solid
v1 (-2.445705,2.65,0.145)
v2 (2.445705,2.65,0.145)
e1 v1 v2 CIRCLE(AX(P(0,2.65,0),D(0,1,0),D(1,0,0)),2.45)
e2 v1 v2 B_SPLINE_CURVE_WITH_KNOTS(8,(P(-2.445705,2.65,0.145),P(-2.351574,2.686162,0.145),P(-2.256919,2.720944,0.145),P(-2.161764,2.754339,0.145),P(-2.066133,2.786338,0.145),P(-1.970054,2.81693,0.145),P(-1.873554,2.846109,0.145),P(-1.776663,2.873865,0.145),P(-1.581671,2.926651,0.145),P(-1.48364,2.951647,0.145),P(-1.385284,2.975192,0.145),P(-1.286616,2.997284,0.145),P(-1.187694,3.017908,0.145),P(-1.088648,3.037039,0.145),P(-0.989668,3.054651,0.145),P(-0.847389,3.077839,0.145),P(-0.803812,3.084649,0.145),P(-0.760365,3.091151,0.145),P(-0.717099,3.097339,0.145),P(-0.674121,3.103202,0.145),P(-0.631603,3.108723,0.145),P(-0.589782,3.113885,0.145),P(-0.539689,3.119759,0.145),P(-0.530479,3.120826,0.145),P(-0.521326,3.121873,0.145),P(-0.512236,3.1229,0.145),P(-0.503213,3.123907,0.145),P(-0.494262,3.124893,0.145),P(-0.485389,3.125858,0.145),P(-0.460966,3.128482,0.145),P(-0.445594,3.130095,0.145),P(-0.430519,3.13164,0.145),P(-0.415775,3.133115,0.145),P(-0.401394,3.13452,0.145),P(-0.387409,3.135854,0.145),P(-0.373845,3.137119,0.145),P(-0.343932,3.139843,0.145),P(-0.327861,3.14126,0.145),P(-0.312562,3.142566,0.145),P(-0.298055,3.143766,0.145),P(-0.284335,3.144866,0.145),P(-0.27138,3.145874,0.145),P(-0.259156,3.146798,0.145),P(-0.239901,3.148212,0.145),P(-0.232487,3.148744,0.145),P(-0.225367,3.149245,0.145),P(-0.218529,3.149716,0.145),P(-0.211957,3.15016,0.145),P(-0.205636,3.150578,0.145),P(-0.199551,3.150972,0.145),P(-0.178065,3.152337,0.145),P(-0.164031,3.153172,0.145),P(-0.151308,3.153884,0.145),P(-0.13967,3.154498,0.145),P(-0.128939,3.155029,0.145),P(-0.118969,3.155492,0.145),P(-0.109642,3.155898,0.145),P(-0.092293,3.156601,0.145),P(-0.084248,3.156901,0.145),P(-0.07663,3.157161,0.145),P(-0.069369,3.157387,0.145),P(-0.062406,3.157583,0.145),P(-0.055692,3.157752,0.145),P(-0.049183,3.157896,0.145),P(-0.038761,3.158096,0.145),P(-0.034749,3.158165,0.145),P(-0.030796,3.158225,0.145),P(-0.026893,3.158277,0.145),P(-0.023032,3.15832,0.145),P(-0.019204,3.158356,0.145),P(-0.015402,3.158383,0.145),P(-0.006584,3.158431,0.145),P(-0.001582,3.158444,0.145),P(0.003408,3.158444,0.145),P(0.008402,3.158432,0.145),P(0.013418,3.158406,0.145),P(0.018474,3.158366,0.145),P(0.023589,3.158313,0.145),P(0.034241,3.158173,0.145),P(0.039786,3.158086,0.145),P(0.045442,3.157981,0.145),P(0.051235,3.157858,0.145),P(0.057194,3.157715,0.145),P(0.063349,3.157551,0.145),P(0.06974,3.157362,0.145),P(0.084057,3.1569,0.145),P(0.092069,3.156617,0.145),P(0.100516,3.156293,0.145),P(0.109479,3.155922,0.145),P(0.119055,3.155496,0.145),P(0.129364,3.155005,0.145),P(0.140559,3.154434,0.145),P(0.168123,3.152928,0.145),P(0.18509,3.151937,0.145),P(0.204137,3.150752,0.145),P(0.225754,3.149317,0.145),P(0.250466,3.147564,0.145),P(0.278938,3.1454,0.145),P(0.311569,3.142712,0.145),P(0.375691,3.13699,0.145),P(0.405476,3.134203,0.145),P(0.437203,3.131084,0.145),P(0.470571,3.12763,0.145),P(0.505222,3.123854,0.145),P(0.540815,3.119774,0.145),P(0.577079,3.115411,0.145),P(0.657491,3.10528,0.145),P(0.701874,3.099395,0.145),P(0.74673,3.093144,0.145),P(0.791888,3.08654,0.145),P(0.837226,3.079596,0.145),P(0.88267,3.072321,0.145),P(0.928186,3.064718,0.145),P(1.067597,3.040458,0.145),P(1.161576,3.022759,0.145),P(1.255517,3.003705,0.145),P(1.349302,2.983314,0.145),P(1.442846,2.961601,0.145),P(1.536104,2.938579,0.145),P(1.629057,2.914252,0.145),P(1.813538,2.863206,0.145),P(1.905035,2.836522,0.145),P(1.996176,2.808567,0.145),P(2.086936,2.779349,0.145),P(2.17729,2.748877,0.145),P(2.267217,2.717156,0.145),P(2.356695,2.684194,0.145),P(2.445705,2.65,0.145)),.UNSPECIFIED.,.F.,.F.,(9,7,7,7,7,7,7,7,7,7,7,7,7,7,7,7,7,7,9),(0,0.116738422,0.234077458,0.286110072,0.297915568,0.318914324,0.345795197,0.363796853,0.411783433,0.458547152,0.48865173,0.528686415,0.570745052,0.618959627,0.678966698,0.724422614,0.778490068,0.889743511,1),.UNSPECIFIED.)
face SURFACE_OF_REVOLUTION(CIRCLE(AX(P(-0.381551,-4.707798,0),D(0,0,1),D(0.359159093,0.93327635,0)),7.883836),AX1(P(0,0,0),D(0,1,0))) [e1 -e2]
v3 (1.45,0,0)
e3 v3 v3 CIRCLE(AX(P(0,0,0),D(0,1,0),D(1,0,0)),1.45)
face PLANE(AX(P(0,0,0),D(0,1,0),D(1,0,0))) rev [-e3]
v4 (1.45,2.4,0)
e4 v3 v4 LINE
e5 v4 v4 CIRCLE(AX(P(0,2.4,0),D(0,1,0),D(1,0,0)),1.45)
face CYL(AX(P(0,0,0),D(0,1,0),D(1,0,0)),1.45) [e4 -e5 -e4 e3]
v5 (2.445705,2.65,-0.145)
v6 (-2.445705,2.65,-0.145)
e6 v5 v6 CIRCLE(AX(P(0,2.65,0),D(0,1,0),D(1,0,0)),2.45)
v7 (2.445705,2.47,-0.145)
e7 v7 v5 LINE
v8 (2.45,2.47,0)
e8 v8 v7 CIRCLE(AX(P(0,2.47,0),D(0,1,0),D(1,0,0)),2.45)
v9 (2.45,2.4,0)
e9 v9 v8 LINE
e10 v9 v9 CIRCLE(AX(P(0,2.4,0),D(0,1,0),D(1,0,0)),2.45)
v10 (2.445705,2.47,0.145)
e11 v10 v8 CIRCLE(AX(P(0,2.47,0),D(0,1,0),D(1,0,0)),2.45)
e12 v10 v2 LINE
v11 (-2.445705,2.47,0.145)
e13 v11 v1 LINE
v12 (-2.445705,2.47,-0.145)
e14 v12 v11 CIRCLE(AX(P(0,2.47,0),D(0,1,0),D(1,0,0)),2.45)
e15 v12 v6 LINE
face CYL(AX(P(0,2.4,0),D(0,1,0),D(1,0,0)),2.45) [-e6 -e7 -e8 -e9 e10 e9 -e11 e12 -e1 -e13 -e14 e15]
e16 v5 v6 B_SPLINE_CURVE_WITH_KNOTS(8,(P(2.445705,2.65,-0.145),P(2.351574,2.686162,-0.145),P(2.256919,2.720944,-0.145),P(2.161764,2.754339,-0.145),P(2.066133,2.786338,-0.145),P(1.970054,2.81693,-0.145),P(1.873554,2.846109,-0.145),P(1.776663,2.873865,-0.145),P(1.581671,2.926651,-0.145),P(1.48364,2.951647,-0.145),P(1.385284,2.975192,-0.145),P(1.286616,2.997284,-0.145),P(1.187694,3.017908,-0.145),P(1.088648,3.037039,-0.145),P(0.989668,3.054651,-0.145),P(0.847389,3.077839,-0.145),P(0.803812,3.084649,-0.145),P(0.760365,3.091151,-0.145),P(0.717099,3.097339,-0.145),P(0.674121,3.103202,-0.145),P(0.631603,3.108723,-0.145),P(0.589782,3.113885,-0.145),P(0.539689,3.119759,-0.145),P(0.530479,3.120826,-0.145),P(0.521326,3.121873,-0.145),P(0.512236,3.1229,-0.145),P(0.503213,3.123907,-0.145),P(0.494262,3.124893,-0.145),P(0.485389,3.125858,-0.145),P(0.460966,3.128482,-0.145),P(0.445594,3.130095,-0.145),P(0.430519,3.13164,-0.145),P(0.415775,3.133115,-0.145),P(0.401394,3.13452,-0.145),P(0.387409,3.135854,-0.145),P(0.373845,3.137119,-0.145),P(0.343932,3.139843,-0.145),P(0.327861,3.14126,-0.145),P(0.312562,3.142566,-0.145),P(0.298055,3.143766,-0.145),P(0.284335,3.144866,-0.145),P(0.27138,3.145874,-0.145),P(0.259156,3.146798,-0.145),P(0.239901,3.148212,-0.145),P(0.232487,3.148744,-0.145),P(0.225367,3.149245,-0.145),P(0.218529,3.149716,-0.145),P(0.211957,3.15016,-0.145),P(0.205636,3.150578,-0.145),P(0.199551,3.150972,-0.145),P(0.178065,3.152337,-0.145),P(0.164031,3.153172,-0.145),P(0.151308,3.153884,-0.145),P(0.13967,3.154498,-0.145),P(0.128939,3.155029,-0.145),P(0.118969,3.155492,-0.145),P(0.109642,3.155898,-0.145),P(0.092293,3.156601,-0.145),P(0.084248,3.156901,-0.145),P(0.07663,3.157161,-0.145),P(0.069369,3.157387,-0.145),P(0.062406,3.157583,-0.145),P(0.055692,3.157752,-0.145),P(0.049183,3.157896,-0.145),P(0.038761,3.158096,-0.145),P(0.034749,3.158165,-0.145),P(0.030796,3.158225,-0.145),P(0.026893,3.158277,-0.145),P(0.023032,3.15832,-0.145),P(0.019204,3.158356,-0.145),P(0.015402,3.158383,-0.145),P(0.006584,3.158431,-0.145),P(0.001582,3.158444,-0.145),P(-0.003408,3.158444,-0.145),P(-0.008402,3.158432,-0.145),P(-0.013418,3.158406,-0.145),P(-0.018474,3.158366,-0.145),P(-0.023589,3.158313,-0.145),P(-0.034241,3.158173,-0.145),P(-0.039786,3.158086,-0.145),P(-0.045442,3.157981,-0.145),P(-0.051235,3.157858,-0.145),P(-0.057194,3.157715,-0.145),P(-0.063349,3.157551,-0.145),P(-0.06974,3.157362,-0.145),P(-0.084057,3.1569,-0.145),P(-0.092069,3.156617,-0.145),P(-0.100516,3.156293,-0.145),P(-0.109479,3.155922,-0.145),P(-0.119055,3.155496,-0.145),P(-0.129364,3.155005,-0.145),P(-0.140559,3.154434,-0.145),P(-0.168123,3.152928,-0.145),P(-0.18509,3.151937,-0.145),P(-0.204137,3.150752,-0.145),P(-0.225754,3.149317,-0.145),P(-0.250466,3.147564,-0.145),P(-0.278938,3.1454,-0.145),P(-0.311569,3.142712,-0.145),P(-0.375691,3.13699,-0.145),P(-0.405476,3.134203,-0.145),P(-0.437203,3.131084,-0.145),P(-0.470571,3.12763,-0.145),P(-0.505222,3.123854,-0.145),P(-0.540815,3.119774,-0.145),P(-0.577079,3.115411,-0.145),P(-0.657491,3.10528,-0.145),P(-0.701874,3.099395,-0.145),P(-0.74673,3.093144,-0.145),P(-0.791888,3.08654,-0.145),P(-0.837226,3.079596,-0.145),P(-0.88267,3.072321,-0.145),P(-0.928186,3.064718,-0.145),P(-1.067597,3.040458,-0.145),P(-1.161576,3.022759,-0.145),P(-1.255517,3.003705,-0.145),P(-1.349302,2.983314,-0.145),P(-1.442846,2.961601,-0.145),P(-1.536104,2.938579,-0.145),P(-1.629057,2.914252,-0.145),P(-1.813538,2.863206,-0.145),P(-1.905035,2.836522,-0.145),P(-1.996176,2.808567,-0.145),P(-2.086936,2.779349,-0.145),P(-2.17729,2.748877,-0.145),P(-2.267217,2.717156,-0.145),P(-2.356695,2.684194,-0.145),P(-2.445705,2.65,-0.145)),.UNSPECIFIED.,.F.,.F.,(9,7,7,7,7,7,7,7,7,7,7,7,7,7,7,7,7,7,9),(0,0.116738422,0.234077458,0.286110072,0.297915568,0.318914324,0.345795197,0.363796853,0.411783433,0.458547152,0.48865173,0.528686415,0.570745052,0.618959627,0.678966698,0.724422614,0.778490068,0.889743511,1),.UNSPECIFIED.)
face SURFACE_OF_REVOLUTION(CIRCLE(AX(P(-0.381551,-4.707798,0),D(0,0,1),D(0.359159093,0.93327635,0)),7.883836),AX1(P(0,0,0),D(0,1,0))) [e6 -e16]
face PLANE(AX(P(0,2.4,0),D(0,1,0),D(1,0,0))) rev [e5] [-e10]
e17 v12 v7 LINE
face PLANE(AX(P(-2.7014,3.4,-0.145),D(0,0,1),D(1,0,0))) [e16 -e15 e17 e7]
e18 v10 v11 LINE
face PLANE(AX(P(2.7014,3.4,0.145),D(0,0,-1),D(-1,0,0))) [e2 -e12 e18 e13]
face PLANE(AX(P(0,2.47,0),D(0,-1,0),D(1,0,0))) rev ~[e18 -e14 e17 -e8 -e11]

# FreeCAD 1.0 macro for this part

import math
import FreeCAD as App
import Part
import Sketcher

V = App.Vector
Q = App.Units.Quantity


def add_polygon(sketch, points):
    """Adds a closed chain of lines whose ends are joined by coincident constraints."""
    first, n = sketch.GeometryCount, len(points)
    for a, b in zip(points, points[1:] + points[:1]):
        sketch.addGeometry(Part.LineSegment(App.Vector(*a, 0), App.Vector(*b, 0)), False)
    for i in range(n):
        sketch.addConstraint(Sketcher.Constraint("Coincident", first + i, 2, first + (i + 1) % n, 1))

doc = App.newDocument("Part")
body = doc.addObject("PartDesign::Body", "Body")

# Sketch on XY plane
sketch1 = doc.addObject("Sketcher::SketchObject", "Sketch")
body.addObject(sketch1)
sketch1.AttachmentSupport = (doc.XY_Plane, [""])
sketch1.MapMode = "FlatFace"
sketch1.addGeometry([
    Part.LineSegment(V(0, 3.17, 0), V(0, 0, 0)),  # 0
    Part.LineSegment(V(0, 0, 0), V(1.45, 0, 0)),  # 1
    Part.LineSegment(V(1.45, 0, 0), V(1.45, 2.4, 0)),  # 2
    Part.LineSegment(V(1.45, 2.4, 0), V(2.45, 2.4, 0)),  # 3
    Part.LineSegment(V(2.45, 2.4, 0), V(2.45, 2.65, 0)),  # 4
    Part.ArcOfCircle(Part.Circle(V(-0.38, -4.71, 0), V(0, 0, 1), 7.88), math.radians(68.95), math.radians(87.23)),  # 5
], False)
sketch1.addConstraint([
    Sketcher.Constraint("Coincident", 0, 2, 1, 1),
    Sketcher.Constraint("Coincident", 1, 2, 2, 1),
    Sketcher.Constraint("Coincident", 2, 2, 3, 1),
    Sketcher.Constraint("Coincident", 3, 2, 4, 1),
    Sketcher.Constraint("Coincident", 4, 2, 5, 1),
    Sketcher.Constraint("Coincident", 5, 2, 0, 1),
    Sketcher.Constraint("Vertical", 0),
    Sketcher.Constraint("Horizontal", 1),
    Sketcher.Constraint("Vertical", 2),
    Sketcher.Constraint("Horizontal", 3),
    Sketcher.Constraint("Vertical", 4),
    Sketcher.Constraint("Coincident", 0, 2, -1, 1),
    Sketcher.Constraint("DistanceX", 3, 1, 3, 2, Q("1 mm")),
    Sketcher.Constraint("DistanceY", 2, 1, 2, 2, Q("2.4 mm")),
    Sketcher.Constraint("DistanceX", 1, 1, 1, 2, Q("1.45 mm")),
    Sketcher.Constraint("DistanceY", 4, 1, 4, 2, Q("0.25 mm")),
    Sketcher.Constraint("Radius", 5, Q("7.8844 mm")),
    Sketcher.Constraint("DistanceY", 0, 2, 0, 1, Q("3.1668 mm")),
])
revolution = doc.addObject("PartDesign::Revolution", "Revolution")
body.addObject(revolution)
revolution.Profile = sketch1
revolution.ReferenceAxis = (sketch1, ["V_Axis"])
revolution.Angle = 360

# Sketch on XZ plane
sketch2 = doc.addObject("Sketcher::SketchObject", "Sketch001")
body.addObject(sketch2)
sketch2.AttachmentSupport = (doc.XZ_Plane, [""])
sketch2.MapMode = "FlatFace"
sketch2.AttachmentOffset = App.Placement(V(0, 0, -14.65), App.Rotation())
add_polygon(sketch2, [(23.9, -2.5), (23.9, 2.5), (-23.9, 2.5), (-23.9, -2.5)])  # lines 0-3
sketch2.addConstraint([
    Sketcher.Constraint("Vertical", 0),
    Sketcher.Constraint("Horizontal", 1),
    Sketcher.Constraint("Vertical", 2),
    Sketcher.Constraint("Horizontal", 3),
    Sketcher.Constraint("Symmetric", 0, 2, 2, 2, -1, 1),
    Sketcher.Constraint("DistanceX", 1, 2, 1, 1, Q("47.7468 mm")),
    Sketcher.Constraint("DistanceY", 0, 1, 0, 2, Q("4.9736 mm")),
])
pocket1 = doc.addObject("PartDesign::Pocket", "Pocket")
body.addObject(pocket1)
pocket1.Profile = sketch2
pocket1.Length = 11
pocket1.Reversed = True

# Sketch on XZ plane
sketch3 = doc.addObject("Sketcher::SketchObject", "Sketch002")
body.addObject(sketch3)
sketch3.AttachmentSupport = (doc.XZ_Plane, [""])
sketch3.MapMode = "FlatFace"
sketch3.AttachmentOffset = App.Placement(V(0, 0, -3.4), App.Rotation())
add_polygon(sketch3, [(-2.7, 0.14), (-2.7, -0.14), (2.7, -0.14), (2.7, 0.14)])  # lines 0-3
sketch3.addConstraint([
    Sketcher.Constraint("Vertical", 0),
    Sketcher.Constraint("Horizontal", 1),
    Sketcher.Constraint("Vertical", 2),
    Sketcher.Constraint("Horizontal", 3),
    Sketcher.Constraint("Symmetric", 0, 2, 2, 2, -1, 1),
    Sketcher.Constraint("DistanceY", 0, 2, 0, 1, Q("0.29 mm")),
    Sketcher.Constraint("DistanceX", 1, 1, 1, 2, Q("5.4028 mm")),
])
pocket2 = doc.addObject("PartDesign::Pocket", "Pocket001")
body.addObject(pocket2)
pocket2.Profile = sketch3
pocket2.Length = 0.93
pocket2.Reversed = True

doc.recompute()
